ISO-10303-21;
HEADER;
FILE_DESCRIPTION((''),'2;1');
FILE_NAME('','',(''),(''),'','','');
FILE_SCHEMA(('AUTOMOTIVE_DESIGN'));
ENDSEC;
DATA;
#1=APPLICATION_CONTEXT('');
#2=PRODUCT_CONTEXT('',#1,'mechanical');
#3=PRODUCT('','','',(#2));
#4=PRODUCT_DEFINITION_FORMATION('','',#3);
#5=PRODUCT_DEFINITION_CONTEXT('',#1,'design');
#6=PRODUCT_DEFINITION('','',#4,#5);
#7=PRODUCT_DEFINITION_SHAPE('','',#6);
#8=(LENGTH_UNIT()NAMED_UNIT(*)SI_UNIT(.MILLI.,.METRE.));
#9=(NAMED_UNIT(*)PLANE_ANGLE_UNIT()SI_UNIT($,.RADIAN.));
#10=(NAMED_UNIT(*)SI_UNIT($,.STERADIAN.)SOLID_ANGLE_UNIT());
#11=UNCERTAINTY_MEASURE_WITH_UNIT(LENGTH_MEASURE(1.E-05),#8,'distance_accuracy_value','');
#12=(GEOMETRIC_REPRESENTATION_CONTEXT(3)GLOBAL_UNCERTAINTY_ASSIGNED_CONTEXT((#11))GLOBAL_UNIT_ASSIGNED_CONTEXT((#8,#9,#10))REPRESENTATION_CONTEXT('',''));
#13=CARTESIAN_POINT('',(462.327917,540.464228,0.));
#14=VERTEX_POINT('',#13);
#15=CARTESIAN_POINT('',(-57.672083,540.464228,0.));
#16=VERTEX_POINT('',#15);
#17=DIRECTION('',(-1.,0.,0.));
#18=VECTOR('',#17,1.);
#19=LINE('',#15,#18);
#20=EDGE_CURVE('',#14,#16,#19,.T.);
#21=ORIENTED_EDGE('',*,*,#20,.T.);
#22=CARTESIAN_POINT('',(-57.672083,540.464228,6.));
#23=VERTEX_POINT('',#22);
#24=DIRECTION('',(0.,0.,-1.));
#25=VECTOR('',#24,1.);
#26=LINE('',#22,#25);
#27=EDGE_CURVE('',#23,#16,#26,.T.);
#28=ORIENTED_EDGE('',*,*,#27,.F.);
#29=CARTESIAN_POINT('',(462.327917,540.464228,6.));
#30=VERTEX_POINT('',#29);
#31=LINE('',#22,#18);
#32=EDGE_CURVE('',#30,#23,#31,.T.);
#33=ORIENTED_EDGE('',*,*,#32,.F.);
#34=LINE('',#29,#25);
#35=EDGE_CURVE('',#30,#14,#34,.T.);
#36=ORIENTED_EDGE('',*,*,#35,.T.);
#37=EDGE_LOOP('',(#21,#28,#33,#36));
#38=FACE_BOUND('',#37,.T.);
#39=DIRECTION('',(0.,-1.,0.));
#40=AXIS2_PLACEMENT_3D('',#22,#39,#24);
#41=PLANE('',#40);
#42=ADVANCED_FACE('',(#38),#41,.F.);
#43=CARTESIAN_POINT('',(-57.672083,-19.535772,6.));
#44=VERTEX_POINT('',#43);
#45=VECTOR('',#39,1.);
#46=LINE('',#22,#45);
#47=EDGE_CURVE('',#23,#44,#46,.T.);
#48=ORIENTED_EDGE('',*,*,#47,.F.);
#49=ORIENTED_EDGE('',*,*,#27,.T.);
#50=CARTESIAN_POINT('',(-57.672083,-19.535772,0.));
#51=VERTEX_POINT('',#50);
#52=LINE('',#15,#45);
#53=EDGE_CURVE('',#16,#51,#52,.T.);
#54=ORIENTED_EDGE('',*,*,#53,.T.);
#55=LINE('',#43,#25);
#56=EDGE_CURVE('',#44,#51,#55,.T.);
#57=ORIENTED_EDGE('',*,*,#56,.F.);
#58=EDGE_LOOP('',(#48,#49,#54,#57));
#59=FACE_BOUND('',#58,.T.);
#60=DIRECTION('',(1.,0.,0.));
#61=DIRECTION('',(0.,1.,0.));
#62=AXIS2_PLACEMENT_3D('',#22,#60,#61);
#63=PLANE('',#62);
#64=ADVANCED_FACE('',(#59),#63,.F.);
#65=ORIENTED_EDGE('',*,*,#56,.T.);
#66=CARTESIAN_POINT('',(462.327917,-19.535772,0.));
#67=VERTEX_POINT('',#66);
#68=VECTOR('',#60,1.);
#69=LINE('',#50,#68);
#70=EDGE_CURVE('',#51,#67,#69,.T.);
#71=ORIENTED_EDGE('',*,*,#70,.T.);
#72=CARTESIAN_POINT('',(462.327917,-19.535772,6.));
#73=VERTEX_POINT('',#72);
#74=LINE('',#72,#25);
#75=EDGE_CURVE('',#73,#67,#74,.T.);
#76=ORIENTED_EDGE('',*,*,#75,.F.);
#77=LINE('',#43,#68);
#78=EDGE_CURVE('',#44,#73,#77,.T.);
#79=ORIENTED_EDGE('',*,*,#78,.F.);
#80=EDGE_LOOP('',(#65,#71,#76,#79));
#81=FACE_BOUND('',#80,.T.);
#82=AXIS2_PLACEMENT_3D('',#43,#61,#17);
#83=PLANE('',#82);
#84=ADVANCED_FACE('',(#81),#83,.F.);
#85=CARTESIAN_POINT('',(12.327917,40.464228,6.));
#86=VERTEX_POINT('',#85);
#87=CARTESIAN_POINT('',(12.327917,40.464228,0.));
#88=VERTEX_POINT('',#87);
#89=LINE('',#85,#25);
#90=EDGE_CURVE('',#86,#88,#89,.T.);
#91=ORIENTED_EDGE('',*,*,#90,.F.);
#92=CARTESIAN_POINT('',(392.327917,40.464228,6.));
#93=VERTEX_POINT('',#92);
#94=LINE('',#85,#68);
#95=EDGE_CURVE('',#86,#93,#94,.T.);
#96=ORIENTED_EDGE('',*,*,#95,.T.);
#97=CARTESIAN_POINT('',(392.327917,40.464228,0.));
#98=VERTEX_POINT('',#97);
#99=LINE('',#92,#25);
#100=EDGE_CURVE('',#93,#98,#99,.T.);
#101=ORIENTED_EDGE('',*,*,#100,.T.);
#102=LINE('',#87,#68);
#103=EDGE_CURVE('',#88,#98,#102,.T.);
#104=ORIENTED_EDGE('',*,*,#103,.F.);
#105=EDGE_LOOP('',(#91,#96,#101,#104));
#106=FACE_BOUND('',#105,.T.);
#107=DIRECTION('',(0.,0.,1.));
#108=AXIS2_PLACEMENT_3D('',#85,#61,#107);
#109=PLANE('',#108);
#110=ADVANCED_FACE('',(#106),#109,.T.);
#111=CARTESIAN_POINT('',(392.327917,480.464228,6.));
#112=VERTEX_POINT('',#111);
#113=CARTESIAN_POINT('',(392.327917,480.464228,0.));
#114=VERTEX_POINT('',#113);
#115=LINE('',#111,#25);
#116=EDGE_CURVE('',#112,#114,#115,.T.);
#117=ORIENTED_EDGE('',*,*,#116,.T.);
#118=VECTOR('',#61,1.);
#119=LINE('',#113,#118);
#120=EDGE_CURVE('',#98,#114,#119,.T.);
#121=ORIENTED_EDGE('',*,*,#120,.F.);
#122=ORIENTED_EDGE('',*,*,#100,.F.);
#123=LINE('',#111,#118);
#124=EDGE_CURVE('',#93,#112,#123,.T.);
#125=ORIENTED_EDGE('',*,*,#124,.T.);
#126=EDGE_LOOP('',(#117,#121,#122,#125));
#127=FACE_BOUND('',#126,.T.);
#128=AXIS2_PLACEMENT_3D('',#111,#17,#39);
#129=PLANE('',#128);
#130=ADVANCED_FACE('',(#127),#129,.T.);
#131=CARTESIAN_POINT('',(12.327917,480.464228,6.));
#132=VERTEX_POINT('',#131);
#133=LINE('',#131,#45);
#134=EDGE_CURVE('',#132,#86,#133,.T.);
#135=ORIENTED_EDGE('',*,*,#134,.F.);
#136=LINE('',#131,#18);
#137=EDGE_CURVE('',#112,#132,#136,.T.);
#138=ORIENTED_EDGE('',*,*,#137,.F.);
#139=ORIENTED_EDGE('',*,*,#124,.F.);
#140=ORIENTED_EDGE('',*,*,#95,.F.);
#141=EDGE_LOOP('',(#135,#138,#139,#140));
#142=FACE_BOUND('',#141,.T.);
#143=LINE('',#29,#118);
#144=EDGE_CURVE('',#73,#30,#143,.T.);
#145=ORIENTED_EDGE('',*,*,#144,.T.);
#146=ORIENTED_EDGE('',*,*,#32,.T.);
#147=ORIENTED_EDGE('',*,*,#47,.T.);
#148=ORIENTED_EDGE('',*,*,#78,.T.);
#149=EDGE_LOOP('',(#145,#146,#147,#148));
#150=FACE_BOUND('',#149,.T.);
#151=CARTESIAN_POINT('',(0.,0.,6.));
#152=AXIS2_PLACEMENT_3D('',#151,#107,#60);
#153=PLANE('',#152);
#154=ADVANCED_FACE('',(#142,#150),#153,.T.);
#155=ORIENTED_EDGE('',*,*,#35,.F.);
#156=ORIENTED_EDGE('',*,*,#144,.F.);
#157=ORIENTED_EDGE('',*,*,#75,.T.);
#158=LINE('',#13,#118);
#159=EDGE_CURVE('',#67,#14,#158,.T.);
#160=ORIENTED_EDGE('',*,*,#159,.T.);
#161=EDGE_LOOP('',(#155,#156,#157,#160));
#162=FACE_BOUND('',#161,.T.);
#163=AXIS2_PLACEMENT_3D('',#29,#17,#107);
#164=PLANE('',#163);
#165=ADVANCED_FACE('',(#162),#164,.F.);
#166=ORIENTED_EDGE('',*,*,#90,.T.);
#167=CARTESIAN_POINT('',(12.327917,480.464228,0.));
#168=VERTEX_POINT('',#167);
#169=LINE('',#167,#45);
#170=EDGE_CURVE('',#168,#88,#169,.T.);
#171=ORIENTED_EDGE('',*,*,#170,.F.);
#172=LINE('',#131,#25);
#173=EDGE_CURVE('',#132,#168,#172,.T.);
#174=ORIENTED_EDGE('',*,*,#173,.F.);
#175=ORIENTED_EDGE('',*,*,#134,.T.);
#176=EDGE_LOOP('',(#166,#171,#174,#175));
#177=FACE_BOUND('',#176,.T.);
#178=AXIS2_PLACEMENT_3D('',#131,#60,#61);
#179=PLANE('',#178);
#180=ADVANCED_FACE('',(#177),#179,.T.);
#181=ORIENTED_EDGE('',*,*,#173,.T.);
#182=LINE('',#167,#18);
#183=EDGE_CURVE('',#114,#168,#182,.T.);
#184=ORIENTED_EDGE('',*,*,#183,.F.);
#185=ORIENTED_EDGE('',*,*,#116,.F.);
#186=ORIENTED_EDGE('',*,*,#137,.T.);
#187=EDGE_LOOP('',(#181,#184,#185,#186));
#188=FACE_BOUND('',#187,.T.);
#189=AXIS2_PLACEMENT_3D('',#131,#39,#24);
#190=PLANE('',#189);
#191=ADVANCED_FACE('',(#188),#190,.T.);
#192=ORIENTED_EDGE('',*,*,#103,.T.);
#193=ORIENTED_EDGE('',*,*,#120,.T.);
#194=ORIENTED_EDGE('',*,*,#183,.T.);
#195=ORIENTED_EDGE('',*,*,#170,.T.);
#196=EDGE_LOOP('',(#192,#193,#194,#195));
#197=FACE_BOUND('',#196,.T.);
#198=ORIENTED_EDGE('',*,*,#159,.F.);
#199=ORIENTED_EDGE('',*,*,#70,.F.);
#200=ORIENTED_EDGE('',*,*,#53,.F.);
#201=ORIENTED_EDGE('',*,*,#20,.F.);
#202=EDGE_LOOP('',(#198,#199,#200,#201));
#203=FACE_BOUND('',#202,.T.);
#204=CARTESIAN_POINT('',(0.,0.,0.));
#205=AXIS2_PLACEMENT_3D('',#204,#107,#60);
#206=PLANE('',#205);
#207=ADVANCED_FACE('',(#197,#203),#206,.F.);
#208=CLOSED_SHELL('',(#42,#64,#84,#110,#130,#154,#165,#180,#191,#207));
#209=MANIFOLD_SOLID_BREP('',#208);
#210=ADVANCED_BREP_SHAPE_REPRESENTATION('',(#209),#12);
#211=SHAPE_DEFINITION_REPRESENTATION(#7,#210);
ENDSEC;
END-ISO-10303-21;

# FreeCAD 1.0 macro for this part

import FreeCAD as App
import Part
import Sketcher
from FreeCAD import Vector
Q = App.Units.Quantity


def add_polygon(sketch, points):
    """Adds a closed chain of lines whose ends are joined by coincident constraints."""
    first, n = sketch.GeometryCount, len(points)
    for a, b in zip(points, points[1:] + points[:1]):
        sketch.addGeometry(Part.LineSegment(App.Vector(*a, 0), App.Vector(*b, 0)), False)
    for i in range(n):
        sketch.addConstraint(Sketcher.Constraint("Coincident", first + i, 2, first + (i + 1) % n, 1))

doc = App.newDocument("Part")
params = doc.addObject("Spreadsheet::Sheet", "Params")
for row, (alias, value) in enumerate([
    ("sketch1_width", "520 mm"),
    ("sketch1_width2", "380 mm"),
    ("sketch1_height", "560 mm"),
    ("sketch1_height2", "440 mm"),
    ("pad1_length", "6 mm"),
], start=1):
    params.set(f"A{row}", alias)
    params.set(f"B{row}", "=" + value)
    params.setAlias(f"B{row}", alias)

body = doc.addObject("PartDesign::Body", "Body")

# Sketch on XY plane
sketch1 = body.newObject("Sketcher::SketchObject", "Sketch")
sketch1.AttachmentSupport = (doc.getObject("XY_Plane"), [""])
sketch1.MapMode = "FlatFace"
add_polygon(sketch1, [(-58, 540), (-58, -20), (462, -20), (462, 540)])  # lines 0-3
add_polygon(sketch1, [(392, 40), (12, 40), (12, 480), (392, 480)])  # lines 4-7
sketch1.addConstraint([
    Sketcher.Constraint("Vertical", 0),
    Sketcher.Constraint("Horizontal", 1),
    Sketcher.Constraint("Vertical", 2),
    Sketcher.Constraint("Horizontal", 3),
    Sketcher.Constraint("Horizontal", 4),
    Sketcher.Constraint("Vertical", 5),
    Sketcher.Constraint("Horizontal", 6),
    Sketcher.Constraint("Vertical", 7),
    Sketcher.Constraint("DistanceX", 1, 1, 1, 2, Q("520 mm")),
    Sketcher.Constraint("DistanceX", 4, 2, 4, 1, Q("380 mm")),
    Sketcher.Constraint("DistanceY", 0, 2, 0, 1, Q("560 mm")),
    Sketcher.Constraint("DistanceY", 5, 1, 5, 2, Q("440 mm")),
    Sketcher.Constraint("DistanceX", 0, 2, 4, 2, Q("70 mm")),
    Sketcher.Constraint("DistanceY", 0, 2, 4, 2, Q("60 mm")),
    Sketcher.Constraint("DistanceX", 0, 2, -1, 1, Q("57.672083 mm")),
    Sketcher.Constraint("DistanceY", 0, 2, -1, 1, Q("19.535772 mm")),
])
sketch1.setExpression("Constraints[16]", "Params.sketch1_width")
sketch1.setExpression("Constraints[17]", "Params.sketch1_width2")
sketch1.setExpression("Constraints[18]", "Params.sketch1_height")
sketch1.setExpression("Constraints[19]", "Params.sketch1_height2")
pad1 = body.newObject("PartDesign::Pad", "Pad")
pad1.Profile = sketch1
pad1.setExpression("Length", "Params.pad1_length")

doc.recompute()
